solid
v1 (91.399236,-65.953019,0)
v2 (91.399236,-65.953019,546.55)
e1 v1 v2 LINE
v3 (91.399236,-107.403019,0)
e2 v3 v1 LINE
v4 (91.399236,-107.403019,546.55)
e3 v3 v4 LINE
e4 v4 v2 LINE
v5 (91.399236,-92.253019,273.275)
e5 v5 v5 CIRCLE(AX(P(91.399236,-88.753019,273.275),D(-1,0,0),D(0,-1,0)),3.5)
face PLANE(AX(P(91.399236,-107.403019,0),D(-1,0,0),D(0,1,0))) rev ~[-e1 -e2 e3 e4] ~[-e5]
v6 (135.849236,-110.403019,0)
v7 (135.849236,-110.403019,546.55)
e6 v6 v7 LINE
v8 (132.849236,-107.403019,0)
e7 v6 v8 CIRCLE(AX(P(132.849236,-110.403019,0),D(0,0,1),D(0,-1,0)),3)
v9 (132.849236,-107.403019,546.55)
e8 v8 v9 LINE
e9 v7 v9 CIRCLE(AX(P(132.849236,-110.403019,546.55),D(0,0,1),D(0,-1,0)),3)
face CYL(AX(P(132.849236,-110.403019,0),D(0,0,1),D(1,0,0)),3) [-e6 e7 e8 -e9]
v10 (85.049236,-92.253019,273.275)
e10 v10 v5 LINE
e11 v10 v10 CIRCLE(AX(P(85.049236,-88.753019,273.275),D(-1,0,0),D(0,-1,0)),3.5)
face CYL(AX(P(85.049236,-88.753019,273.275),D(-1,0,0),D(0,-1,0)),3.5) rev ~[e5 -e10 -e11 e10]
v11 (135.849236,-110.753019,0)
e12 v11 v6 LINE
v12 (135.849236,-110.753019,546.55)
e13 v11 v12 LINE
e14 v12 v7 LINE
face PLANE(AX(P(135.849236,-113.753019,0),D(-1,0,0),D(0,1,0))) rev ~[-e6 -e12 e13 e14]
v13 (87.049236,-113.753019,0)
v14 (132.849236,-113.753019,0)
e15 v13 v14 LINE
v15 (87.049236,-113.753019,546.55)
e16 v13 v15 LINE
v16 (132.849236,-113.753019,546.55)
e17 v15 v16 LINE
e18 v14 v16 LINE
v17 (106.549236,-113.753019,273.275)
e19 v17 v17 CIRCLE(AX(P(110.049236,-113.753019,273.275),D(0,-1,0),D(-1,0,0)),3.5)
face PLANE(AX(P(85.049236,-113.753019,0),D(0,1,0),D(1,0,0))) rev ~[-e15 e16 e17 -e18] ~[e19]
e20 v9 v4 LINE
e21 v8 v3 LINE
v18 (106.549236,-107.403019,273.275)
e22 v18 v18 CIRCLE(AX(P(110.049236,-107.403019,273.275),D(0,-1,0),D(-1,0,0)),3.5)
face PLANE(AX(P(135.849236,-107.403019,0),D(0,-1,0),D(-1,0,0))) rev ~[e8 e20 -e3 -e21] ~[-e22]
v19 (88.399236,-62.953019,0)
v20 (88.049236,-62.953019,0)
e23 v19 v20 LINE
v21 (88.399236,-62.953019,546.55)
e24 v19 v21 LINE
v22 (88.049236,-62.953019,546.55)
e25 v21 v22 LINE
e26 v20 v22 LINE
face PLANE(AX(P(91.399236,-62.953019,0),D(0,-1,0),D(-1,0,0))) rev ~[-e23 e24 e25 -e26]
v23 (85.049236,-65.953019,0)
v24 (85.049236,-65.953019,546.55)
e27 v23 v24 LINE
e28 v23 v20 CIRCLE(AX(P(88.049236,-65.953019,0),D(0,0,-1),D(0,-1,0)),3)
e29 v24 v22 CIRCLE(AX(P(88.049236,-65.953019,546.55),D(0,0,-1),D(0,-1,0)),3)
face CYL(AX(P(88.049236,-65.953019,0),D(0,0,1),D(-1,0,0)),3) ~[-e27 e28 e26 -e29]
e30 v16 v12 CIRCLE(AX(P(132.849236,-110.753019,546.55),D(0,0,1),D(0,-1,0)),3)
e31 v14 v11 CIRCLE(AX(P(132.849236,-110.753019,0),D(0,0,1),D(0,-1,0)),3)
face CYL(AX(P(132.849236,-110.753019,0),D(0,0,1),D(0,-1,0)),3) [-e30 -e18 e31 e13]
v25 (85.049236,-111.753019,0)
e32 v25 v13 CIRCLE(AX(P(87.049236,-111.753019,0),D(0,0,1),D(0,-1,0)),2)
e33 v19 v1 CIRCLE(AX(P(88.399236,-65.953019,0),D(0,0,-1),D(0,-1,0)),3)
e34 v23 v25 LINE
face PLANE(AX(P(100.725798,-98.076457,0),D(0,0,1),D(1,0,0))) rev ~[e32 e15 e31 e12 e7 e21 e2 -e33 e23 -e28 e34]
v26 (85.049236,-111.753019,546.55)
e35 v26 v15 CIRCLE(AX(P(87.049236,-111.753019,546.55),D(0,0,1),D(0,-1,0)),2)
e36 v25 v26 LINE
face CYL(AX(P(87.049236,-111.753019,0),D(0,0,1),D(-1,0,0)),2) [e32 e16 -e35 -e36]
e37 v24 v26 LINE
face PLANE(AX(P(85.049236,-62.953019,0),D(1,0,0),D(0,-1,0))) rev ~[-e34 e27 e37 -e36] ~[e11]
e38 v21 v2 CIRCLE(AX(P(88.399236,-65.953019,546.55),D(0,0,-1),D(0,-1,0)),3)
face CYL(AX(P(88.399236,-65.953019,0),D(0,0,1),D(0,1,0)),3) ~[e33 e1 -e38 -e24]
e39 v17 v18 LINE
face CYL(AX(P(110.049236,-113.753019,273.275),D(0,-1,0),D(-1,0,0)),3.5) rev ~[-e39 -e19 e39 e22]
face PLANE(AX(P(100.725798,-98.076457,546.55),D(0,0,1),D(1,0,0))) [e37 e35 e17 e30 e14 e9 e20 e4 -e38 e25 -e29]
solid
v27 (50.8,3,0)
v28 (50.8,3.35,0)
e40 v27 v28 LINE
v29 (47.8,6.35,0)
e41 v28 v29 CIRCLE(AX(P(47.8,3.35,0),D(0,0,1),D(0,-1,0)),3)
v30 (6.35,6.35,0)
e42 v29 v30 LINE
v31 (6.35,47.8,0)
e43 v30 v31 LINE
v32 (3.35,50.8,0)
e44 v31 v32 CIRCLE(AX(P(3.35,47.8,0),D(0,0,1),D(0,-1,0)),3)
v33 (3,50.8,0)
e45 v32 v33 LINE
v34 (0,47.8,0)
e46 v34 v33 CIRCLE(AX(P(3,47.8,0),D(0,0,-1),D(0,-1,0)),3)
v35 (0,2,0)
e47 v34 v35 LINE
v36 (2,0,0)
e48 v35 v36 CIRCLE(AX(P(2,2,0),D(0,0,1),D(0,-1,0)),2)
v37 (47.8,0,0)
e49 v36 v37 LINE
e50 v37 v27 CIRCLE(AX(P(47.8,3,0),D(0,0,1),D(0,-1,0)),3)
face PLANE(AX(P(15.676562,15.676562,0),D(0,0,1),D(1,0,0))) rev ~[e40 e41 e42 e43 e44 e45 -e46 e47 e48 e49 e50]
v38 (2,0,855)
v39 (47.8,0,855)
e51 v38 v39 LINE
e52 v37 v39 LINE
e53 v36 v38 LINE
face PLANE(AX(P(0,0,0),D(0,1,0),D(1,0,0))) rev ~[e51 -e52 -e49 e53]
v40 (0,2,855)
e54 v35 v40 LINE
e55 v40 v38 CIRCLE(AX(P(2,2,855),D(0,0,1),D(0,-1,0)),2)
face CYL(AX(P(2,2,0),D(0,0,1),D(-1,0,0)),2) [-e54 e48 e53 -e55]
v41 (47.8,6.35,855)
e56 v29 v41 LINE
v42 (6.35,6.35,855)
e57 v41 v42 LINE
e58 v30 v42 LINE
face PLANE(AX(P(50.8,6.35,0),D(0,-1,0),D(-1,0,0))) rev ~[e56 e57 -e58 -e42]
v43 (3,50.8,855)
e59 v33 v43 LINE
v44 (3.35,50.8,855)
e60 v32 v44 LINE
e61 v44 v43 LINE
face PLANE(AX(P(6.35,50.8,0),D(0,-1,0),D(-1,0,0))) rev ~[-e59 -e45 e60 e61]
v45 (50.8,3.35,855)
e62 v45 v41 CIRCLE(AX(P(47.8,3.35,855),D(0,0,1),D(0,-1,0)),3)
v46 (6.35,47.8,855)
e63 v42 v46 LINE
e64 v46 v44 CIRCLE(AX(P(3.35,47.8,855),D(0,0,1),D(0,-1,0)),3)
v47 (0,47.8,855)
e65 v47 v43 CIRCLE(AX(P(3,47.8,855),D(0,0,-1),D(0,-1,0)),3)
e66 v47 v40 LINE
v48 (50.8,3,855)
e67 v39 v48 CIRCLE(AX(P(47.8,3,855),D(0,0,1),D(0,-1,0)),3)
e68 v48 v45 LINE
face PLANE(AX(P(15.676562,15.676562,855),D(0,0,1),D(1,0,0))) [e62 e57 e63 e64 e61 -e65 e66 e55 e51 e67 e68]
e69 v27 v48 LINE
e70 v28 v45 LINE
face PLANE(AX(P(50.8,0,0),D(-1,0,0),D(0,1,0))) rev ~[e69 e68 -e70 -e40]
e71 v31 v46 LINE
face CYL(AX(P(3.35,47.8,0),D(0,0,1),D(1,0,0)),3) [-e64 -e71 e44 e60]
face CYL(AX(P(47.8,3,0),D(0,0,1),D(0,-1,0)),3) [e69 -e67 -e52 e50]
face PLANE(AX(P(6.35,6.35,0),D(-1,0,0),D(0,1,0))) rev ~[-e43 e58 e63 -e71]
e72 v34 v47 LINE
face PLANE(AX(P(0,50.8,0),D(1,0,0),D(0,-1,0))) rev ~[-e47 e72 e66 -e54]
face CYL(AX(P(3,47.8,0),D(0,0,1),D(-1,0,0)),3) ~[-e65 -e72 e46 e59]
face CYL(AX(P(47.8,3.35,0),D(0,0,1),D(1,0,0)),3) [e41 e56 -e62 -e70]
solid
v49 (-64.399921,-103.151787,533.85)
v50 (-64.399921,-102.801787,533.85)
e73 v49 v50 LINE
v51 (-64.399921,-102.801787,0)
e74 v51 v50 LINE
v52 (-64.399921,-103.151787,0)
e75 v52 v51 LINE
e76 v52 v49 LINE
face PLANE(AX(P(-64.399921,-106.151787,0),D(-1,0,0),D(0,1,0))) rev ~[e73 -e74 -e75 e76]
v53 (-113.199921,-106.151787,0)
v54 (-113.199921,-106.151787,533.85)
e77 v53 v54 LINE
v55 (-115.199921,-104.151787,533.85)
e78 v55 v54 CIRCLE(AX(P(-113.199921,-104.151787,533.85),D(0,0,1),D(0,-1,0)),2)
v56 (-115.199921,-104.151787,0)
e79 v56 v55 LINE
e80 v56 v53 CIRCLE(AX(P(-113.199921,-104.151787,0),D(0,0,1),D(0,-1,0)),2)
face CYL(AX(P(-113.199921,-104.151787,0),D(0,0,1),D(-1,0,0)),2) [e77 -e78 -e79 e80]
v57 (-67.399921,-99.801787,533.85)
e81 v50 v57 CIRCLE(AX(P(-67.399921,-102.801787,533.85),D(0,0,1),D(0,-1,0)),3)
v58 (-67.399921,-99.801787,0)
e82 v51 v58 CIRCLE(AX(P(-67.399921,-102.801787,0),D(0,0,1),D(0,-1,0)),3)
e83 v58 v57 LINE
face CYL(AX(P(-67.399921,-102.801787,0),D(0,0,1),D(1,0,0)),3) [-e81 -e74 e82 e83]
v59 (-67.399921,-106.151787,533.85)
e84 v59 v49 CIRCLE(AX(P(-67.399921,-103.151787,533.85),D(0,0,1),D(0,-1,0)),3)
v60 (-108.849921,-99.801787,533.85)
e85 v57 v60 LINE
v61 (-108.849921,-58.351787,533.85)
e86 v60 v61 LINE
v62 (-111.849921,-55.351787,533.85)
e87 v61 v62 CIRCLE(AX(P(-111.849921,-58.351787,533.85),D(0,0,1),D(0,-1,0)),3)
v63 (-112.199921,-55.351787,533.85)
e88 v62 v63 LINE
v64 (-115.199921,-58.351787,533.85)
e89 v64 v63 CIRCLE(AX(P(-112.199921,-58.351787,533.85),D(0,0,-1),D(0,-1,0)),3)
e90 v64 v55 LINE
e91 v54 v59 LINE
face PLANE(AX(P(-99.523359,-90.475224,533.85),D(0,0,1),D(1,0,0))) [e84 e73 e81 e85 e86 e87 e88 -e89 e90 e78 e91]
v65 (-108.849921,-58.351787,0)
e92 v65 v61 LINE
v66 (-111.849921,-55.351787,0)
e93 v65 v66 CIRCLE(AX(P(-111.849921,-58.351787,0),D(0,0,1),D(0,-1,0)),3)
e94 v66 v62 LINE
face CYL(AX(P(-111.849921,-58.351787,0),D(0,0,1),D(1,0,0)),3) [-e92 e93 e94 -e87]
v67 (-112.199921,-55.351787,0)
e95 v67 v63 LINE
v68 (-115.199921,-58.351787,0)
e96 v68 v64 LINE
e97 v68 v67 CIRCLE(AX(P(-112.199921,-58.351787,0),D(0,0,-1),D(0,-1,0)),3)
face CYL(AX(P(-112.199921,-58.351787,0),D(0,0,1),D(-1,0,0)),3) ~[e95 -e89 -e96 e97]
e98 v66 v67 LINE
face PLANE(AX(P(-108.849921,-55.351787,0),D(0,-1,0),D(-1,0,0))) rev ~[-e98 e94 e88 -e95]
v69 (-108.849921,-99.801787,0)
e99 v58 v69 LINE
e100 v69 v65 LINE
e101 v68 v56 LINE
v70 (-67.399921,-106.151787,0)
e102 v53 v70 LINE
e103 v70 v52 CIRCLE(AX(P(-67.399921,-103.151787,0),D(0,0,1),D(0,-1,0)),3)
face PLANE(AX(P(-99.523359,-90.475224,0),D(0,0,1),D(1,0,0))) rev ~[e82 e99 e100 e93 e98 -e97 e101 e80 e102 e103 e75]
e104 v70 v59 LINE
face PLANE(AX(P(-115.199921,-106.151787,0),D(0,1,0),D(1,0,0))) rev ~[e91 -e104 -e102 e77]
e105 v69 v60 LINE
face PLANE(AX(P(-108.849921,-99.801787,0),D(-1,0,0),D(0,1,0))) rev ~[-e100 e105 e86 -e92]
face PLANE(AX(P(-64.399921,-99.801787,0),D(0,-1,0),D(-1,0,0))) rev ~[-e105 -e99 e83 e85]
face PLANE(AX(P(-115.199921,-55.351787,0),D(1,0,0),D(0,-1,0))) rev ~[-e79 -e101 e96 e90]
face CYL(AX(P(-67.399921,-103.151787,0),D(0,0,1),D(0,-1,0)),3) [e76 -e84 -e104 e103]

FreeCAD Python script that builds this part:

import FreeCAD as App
import Part
import Sketcher
Q = App.Units.Quantity


def edges_at(feature, points):
    """Names of the edges that pass closest to the given points."""
    edges = feature.Shape.Edges
    near = lambda p: min(range(len(edges)), key=lambda i: edges[i].distToShape(Part.Vertex(*p))[0])
    return sorted({f"Edge{near(p) + 1}" for p in points})

doc = App.newDocument("Part")
body = doc.addObject("PartDesign::Body", "Body")

# Sketch on XY plane
sketch1 = body.newObject("Sketcher::SketchObject", "Sketch")
sketch1.AttachmentSupport = (doc.getObject("XY_Plane"), [""])
sketch1.MapMode = "FlatFace"
sketch1.addGeometry([
    Part.LineSegment(App.Vector(0, 51, 0), App.Vector(0, 0, 0)),  # 0
    Part.LineSegment(App.Vector(0, 0, 0), App.Vector(51, 0, 0)),  # 1
    Part.LineSegment(App.Vector(51, 0, 0), App.Vector(51, 6, 0)),  # 2
    Part.LineSegment(App.Vector(51, 6, 0), App.Vector(6, 6, 0)),  # 3
    Part.LineSegment(App.Vector(6, 6, 0), App.Vector(6, 51, 0)),  # 4
    Part.LineSegment(App.Vector(6, 51, 0), App.Vector(0, 51, 0)),  # 5
], False)
sketch1.addConstraint([
    Sketcher.Constraint("Coincident", 0, 2, 1, 1),
    Sketcher.Constraint("Coincident", 1, 2, 2, 1),
    Sketcher.Constraint("Coincident", 2, 2, 3, 1),
    Sketcher.Constraint("Coincident", 3, 2, 4, 1),
    Sketcher.Constraint("Coincident", 4, 2, 5, 1),
    Sketcher.Constraint("Coincident", 5, 2, 0, 1),
    Sketcher.Constraint("Vertical", 0),
    Sketcher.Constraint("Horizontal", 1),
    Sketcher.Constraint("Vertical", 2),
    Sketcher.Constraint("Horizontal", 3),
    Sketcher.Constraint("Vertical", 4),
    Sketcher.Constraint("Horizontal", 5),
    Sketcher.Constraint("Coincident", 0, 2, -1, 1),
    Sketcher.Constraint("Equal", 1, 0),
    Sketcher.Constraint("Equal", 5, 2),
    Sketcher.Constraint("DistanceX", 1, 1, 1, 2, Q("50.8 mm")),
    Sketcher.Constraint("DistanceX", 3, 2, 3, 1, Q("44.45 mm")),
])
pad1 = body.newObject("PartDesign::Pad", "Pad")
pad1.Profile = sketch1
pad1.Length = 855
doc.recompute()

fillet = body.newObject("PartDesign::Fillet", "Fillet")
fillet.Base = (pad1, edges_at(pad1, [
    (6.35, 50.8, 427.5),
    (0, 50.8, 427.5),
    (50.8, 6.35, 427.5),
    (50.8, 0, 427.5),
]))
fillet.Radius = 3
doc.recompute()

fillet2 = body.newObject("PartDesign::Fillet", "Fillet001")
fillet2.Base = (fillet, edges_at(fillet, [(0, 0, 427.5)]))
fillet2.Radius = 2
body2 = doc.addObject("PartDesign::Body", "Body001")

# Sketch on XY plane
sketch2 = body2.newObject("Sketcher::SketchObject", "Sketch001")
sketch2.AttachmentSupport = (doc.getObject("XY_Plane001"), [""])
sketch2.MapMode = "FlatFace"
sketch2.addGeometry([
    Part.LineSegment(App.Vector(85, -63, 0), App.Vector(85, -114, 0)),  # 0
    Part.LineSegment(App.Vector(85, -114, 0), App.Vector(136, -114, 0)),  # 1
    Part.LineSegment(App.Vector(136, -114, 0), App.Vector(136, -107, 0)),  # 2
    Part.LineSegment(App.Vector(136, -107, 0), App.Vector(91, -107, 0)),  # 3
    Part.LineSegment(App.Vector(91, -107, 0), App.Vector(91, -63, 0)),  # 4
    Part.LineSegment(App.Vector(91, -63, 0), App.Vector(85, -63, 0)),  # 5
], False)
sketch2.addConstraint([
    Sketcher.Constraint("Coincident", 0, 2, 1, 1),
    Sketcher.Constraint("Coincident", 1, 2, 2, 1),
    Sketcher.Constraint("Coincident", 2, 2, 3, 1),
    Sketcher.Constraint("Coincident", 3, 2, 4, 1),
    Sketcher.Constraint("Coincident", 4, 2, 5, 1),
    Sketcher.Constraint("Coincident", 5, 2, 0, 1),
    Sketcher.Constraint("Vertical", 0),
    Sketcher.Constraint("Horizontal", 1),
    Sketcher.Constraint("Vertical", 2),
    Sketcher.Constraint("Horizontal", 3),
    Sketcher.Constraint("Vertical", 4),
    Sketcher.Constraint("Horizontal", 5),
    Sketcher.Constraint("Equal", 1, 0),
    Sketcher.Constraint("Equal", 5, 2),
    Sketcher.Constraint("DistanceX", 1, 1, 1, 2, Q("50.8 mm")),
    Sketcher.Constraint("DistanceX", 3, 2, 3, 1, Q("44.45 mm")),
    Sketcher.Constraint("DistanceY", 0, 2, -1, 1, Q("113.753019 mm")),
    Sketcher.Constraint("DistanceX", -1, 1, 0, 2, Q("85.049236 mm")),
])
pad2 = body2.newObject("PartDesign::Pad", "Pad001")
pad2.Profile = sketch2
pad2.Length = 546.55

# Sketch on YZ plane
sketch3 = body2.newObject("Sketcher::SketchObject", "Sketch002")
sketch3.AttachmentSupport = (doc.getObject("YZ_Plane001"), [""])
sketch3.MapMode = "FlatFace"
sketch3.AttachmentOffset = App.Placement(App.Vector(0, 0, 85.049236), App.Rotation())
sketch3.addGeometry(Part.Circle(App.Vector(-88.8, 273.3, 0), App.Vector(0, 0, 1), 3.5), False)
sketch3.addConstraint([
    Sketcher.Constraint("Diameter", 0, Q("7 mm")),
    Sketcher.Constraint("DistanceY", -1, 1, 0, 3, Q("273.275 mm")),
    Sketcher.Constraint("DistanceX", 0, 3, -1, 1, Q("88.753019 mm")),
])
pocket1 = body2.newObject("PartDesign::Pocket", "Pocket")
pocket1.Profile = sketch3
pocket1.Type = "ThroughAll"
pocket1.Reversed = True

# Sketch on XZ plane
sketch4 = body2.newObject("Sketcher::SketchObject", "Sketch003")
sketch4.AttachmentSupport = (doc.getObject("XZ_Plane001"), [""])
sketch4.MapMode = "FlatFace"
sketch4.AttachmentOffset = App.Placement(App.Vector(0, 0, 113.753019), App.Rotation())
sketch4.addGeometry(Part.Circle(App.Vector(110, 273.3, 0), App.Vector(0, 0, 1), 3.5), False)
sketch4.addConstraint([
    Sketcher.Constraint("Diameter", 0, Q("7 mm")),
    Sketcher.Constraint("DistanceY", -1, 1, 0, 3, Q("273.275 mm")),
    Sketcher.Constraint("DistanceX", -1, 1, 0, 3, Q("110.049236 mm")),
])
pocket2 = body2.newObject("PartDesign::Pocket", "Pocket001")
pocket2.Profile = sketch4
pocket2.Type = "ThroughAll"
doc.recompute()

fillet3 = body2.newObject("PartDesign::Fillet", "Fillet002")
fillet3.Base = (pocket2, edges_at(pocket2, [
    (135.849, -113.753, 273.275),
    (85.049, -62.953, 273.275),
    (91.399, -62.953, 273.275),
    (135.849, -107.403, 273.275),
]))
fillet3.Radius = 3
doc.recompute()

fillet4 = body2.newObject("PartDesign::Fillet", "Fillet003")
fillet4.Base = (fillet3, edges_at(fillet3, [(85.049, -113.753, 273.275)]))
fillet4.Radius = 2
body3 = doc.addObject("PartDesign::Body", "Body002")

# Sketch on XY plane
sketch5 = body3.newObject("Sketcher::SketchObject", "Sketch004")
sketch5.AttachmentSupport = (doc.getObject("XY_Plane002"), [""])
sketch5.MapMode = "FlatFace"
sketch5.addGeometry([
    Part.LineSegment(App.Vector(-115, -55, 0), App.Vector(-115, -106, 0)),  # 0
    Part.LineSegment(App.Vector(-115, -106, 0), App.Vector(-64, -106, 0)),  # 1
    Part.LineSegment(App.Vector(-64, -106, 0), App.Vector(-64, -100, 0)),  # 2
    Part.LineSegment(App.Vector(-64, -100, 0), App.Vector(-109, -100, 0)),  # 3
    Part.LineSegment(App.Vector(-109, -100, 0), App.Vector(-109, -55, 0)),  # 4
    Part.LineSegment(App.Vector(-109, -55, 0), App.Vector(-115, -55, 0)),  # 5
], False)
sketch5.addConstraint([
    Sketcher.Constraint("Coincident", 0, 2, 1, 1),
    Sketcher.Constraint("Coincident", 1, 2, 2, 1),
    Sketcher.Constraint("Coincident", 2, 2, 3, 1),
    Sketcher.Constraint("Coincident", 3, 2, 4, 1),
    Sketcher.Constraint("Coincident", 4, 2, 5, 1),
    Sketcher.Constraint("Coincident", 5, 2, 0, 1),
    Sketcher.Constraint("Vertical", 0),
    Sketcher.Constraint("Horizontal", 1),
    Sketcher.Constraint("Vertical", 2),
    Sketcher.Constraint("Horizontal", 3),
    Sketcher.Constraint("Vertical", 4),
    Sketcher.Constraint("Horizontal", 5),
    Sketcher.Constraint("Equal", 1, 0),
    Sketcher.Constraint("Equal", 5, 2),
    Sketcher.Constraint("DistanceX", 1, 1, 1, 2, Q("50.8 mm")),
    Sketcher.Constraint("DistanceX", 3, 2, 3, 1, Q("44.45 mm")),
    Sketcher.Constraint("DistanceX", 0, 2, -1, 1, Q("115.199921 mm")),
    Sketcher.Constraint("DistanceY", 0, 2, -1, 1, Q("106.151787 mm")),
])
pad3 = body3.newObject("PartDesign::Pad", "Pad002")
pad3.Profile = sketch5
pad3.Length = 533.85
doc.recompute()

fillet5 = body3.newObject("PartDesign::Fillet", "Fillet004")
fillet5.Base = (pad3, edges_at(pad3, [
    (-64.4, -106.152, 266.925),
    (-64.4, -99.802, 266.925),
    (-108.85, -55.352, 266.925),
    (-115.2, -55.352, 266.925),
]))
fillet5.Radius = 3
doc.recompute()

fillet6 = body3.newObject("PartDesign::Fillet", "Fillet005")
fillet6.Base = (fillet5, edges_at(fillet5, [(-115.2, -106.152, 266.925)]))
fillet6.Radius = 2

doc.recompute()
